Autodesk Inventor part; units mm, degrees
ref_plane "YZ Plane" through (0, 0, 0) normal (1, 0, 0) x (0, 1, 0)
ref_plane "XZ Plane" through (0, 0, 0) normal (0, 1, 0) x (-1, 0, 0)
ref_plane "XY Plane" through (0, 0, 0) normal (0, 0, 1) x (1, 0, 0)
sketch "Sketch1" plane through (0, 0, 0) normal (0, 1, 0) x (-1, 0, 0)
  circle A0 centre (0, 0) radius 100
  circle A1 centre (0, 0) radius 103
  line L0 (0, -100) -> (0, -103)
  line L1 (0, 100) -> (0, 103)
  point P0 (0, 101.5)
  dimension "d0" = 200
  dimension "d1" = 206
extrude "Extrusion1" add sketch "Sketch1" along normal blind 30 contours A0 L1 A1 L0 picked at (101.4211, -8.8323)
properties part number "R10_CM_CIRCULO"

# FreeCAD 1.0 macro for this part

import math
import FreeCAD as App
import Part
import Sketcher

V = App.Vector
Q = App.Units.Quantity

doc = App.newDocument("Part")
body = doc.addObject("PartDesign::Body", "Body")

# Sketch on XZ plane
sketch1 = doc.addObject("Sketcher::SketchObject", "Sketch")
body.addObject(sketch1)
sketch1.AttachmentSupport = (doc.XZ_Plane, [""])
sketch1.MapMode = "FlatFace"
sketch1.addGeometry(Part.ArcOfCircle(Part.Circle(V(0, 0, 0), V(0, 0, 1), 100), math.radians(90), math.radians(270)), False)
sketch1.addGeometry(Part.LineSegment(V(0, -100, 0), V(0, -103, 0)), False)
sketch1.addGeometry(Part.ArcOfCircle(Part.Circle(V(0, 0, 0), V(0, 0, 1), 103), math.radians(90), math.radians(270)), False)
sketch1.addGeometry(Part.LineSegment(V(0, 103, 0), V(0, 100, 0)), False)
sketch1.addConstraint(Sketcher.Constraint("Coincident", 0, 2, 1, 1))
sketch1.addConstraint(Sketcher.Constraint("Coincident", 1, 2, 2, 2))
sketch1.addConstraint(Sketcher.Constraint("Coincident", 2, 1, 3, 1))
sketch1.addConstraint(Sketcher.Constraint("Coincident", 3, 2, 0, 1))
sketch1.addConstraint(Sketcher.Constraint("Vertical", 1))
sketch1.addConstraint(Sketcher.Constraint("Vertical", 3))
sketch1.addConstraint(Sketcher.Constraint("Coincident", 0, 3, -1, 1))
sketch1.addConstraint(Sketcher.Constraint("Coincident", 2, 3, -1, 1))
sketch1.addConstraint(Sketcher.Constraint("PointOnObject", 0, 2, -2))
sketch1.addConstraint(Sketcher.Constraint("PointOnObject", 2, 1, -2))
sketch1.addConstraint(Sketcher.Constraint("Radius", 0, Q("100 mm")))
sketch1.addConstraint(Sketcher.Constraint("Radius", 2, Q("103 mm")))
pad1 = doc.addObject("PartDesign::Pad", "Pad")
body.addObject(pad1)
pad1.Profile = sketch1
pad1.Length = 30
pad1.Reversed = True

doc.recompute()
